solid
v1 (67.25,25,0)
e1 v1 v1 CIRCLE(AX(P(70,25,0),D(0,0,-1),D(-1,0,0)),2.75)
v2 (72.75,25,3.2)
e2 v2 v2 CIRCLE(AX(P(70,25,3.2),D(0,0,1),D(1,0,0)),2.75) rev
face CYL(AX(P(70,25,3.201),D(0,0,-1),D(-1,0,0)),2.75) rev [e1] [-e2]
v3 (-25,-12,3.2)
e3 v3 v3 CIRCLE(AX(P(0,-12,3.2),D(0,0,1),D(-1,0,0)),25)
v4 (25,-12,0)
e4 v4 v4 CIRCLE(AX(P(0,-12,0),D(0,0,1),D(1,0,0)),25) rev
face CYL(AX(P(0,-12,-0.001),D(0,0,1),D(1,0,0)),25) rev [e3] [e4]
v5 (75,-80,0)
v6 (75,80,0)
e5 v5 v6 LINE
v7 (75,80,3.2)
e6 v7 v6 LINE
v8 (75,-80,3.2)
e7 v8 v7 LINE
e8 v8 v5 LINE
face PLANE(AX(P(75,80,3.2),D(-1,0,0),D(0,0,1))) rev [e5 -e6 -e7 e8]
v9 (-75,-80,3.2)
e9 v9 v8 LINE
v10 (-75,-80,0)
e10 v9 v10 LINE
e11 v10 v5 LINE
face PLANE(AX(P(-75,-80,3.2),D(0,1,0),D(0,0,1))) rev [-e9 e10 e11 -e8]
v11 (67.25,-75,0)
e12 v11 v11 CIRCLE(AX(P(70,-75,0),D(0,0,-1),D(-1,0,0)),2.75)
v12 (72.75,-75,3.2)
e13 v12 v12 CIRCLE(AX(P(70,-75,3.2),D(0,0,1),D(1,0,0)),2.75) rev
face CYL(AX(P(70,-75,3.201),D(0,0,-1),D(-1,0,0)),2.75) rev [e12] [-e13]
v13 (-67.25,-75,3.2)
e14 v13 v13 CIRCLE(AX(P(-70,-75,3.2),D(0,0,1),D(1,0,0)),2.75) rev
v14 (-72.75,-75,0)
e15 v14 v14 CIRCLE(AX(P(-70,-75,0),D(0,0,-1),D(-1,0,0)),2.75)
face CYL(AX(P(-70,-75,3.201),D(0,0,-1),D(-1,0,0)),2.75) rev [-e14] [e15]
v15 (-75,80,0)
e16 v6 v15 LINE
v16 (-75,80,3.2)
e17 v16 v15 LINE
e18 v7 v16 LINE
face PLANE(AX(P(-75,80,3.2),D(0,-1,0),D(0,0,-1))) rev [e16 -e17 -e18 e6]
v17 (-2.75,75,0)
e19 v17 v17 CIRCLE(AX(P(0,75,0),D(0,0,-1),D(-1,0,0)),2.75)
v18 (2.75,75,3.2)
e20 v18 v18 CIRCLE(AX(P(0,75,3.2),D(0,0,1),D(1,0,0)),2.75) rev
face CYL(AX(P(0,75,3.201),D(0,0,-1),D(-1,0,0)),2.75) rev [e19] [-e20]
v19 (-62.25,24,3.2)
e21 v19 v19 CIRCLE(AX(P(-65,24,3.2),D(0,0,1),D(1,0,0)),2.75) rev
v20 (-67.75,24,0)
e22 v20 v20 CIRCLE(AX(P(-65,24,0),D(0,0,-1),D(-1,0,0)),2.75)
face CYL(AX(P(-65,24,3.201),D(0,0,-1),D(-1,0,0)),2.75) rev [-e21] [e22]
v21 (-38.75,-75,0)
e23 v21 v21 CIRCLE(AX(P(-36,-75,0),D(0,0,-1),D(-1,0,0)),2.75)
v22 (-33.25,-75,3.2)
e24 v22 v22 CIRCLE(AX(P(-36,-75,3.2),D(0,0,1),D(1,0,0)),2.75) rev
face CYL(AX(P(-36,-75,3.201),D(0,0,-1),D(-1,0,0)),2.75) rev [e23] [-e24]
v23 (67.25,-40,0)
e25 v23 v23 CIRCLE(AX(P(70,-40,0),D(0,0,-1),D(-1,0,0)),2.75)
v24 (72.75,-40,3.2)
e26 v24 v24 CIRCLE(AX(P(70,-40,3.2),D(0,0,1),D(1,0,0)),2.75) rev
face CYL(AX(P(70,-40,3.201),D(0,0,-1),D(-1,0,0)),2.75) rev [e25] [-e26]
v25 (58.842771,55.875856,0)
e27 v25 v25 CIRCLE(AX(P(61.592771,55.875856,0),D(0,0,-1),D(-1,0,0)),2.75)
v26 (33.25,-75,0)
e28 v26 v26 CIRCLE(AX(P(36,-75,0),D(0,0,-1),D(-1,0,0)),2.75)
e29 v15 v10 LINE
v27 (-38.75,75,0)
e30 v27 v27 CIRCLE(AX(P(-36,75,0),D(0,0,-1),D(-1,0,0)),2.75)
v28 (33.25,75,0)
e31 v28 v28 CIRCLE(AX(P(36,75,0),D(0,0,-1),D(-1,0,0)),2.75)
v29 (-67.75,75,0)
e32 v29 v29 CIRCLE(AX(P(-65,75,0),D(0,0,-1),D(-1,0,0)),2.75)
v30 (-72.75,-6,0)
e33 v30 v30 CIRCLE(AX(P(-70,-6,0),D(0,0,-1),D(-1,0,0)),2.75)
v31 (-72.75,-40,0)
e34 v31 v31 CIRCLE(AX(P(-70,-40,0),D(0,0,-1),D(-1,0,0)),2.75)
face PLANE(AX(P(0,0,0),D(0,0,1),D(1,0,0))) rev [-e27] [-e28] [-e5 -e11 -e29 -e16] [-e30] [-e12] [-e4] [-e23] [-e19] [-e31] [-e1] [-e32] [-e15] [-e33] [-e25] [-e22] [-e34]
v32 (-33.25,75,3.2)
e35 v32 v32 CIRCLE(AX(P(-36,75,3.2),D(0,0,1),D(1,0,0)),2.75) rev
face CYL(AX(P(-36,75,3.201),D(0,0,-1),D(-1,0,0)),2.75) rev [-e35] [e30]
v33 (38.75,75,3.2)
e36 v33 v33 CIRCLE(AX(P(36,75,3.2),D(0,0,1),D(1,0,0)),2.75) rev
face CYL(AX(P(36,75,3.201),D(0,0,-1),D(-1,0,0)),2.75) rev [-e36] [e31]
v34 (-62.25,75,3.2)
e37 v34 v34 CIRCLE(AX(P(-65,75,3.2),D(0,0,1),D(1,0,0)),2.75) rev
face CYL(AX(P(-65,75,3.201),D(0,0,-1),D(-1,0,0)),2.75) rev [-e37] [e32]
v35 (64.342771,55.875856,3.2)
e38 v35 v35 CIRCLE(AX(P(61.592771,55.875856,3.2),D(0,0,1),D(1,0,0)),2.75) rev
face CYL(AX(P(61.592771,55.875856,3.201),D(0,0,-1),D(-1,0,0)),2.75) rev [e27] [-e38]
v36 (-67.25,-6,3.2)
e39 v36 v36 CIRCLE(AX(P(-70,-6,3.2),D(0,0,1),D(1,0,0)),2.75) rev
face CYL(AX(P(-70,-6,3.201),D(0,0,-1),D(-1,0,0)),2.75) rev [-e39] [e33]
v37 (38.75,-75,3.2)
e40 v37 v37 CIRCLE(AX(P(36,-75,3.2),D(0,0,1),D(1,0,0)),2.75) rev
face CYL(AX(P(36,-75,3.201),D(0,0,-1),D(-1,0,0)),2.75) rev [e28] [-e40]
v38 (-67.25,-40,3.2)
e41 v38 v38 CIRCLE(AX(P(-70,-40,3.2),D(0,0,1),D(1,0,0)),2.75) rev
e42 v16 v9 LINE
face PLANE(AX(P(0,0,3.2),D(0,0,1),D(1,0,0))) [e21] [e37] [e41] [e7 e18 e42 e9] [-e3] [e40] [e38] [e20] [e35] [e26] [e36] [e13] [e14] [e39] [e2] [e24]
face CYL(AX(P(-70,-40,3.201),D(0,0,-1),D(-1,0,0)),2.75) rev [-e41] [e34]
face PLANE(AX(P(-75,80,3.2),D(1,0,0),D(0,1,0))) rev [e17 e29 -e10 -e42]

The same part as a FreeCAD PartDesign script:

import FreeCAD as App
import Part
import Sketcher
from FreeCAD import Vector

doc = App.newDocument("Part")
body = doc.addObject("PartDesign::Body", "Body")

sketch1 = body.newObject("Sketcher::SketchObject", "Sketch")
sketch1.AttachmentSupport = (doc.getObject("XY_Plane"), [""])
sketch1.MapMode = "FlatFace"
sketch1.addGeometry([
    Part.LineSegment(Vector(-75, 80, 0), Vector(-75, -80, 0)),
    Part.LineSegment(Vector(-75, -80, 0), Vector(75, -80, 0)),
    Part.LineSegment(Vector(75, -80, 0), Vector(75, 80, 0)),
    Part.LineSegment(Vector(75, 80, 0), Vector(-75, 80, 0)),
], False)
sketch1.addConstraint([
    Sketcher.Constraint("Coincident", 0, 2, 1, 1),
    Sketcher.Constraint("Coincident", 1, 2, 2, 1),
    Sketcher.Constraint("Coincident", 2, 2, 3, 1),
    Sketcher.Constraint("Coincident", 3, 2, 0, 1),
    Sketcher.Constraint("Vertical", 0),
    Sketcher.Constraint("Horizontal", 1),
    Sketcher.Constraint("Vertical", 2),
    Sketcher.Constraint("Horizontal", 3),
    Sketcher.Constraint("Symmetric", 0, 2, 2, 2, -1, 1),
    Sketcher.Constraint("DistanceX", 1, 1, 1, 2, 150.0),
    Sketcher.Constraint("DistanceY", 0, 2, 0, 1, 160.0),
])
pad1 = body.newObject("PartDesign::Pad", "Pad")
pad1.Profile = sketch1
pad1.Length = 3.2

sketch2 = body.newObject("Sketcher::SketchObject", "Sketch001")
sketch2.AttachmentSupport = (doc.getObject("XY_Plane"), [""])
sketch2.MapMode = "FlatFace"
sketch2.AttachmentOffset = App.Placement(Vector(0, 0, 3.2), App.Rotation())
sketch2.addGeometry(Part.Circle(Vector(0, -12, 0), Vector(0, 0, 1), 25), False)
sketch2.addConstraint([
    Sketcher.Constraint("PointOnObject", 0, 3, -2),
    Sketcher.Constraint("Diameter", 0, 50.0),
    Sketcher.Constraint("DistanceY", 0, 3, -1, 1, 12.0),
])
pocket1 = body.newObject("PartDesign::Pocket", "Pocket")
pocket1.Profile = sketch2
pocket1.Type = "UpToFirst"

sketch3 = body.newObject("Sketcher::SketchObject", "Sketch002")
sketch3.AttachmentSupport = (doc.getObject("XY_Plane"), [""])
sketch3.MapMode = "FlatFace"
sketch3.addGeometry(Part.Circle(Vector(-65, 24, 0), Vector(0, 0, 1), 2.8), False)
sketch3.addConstraint([
    Sketcher.Constraint("Diameter", 0, 5.5),
    Sketcher.Constraint("DistanceX", 0, 3, -1, 1, 65.0),
    Sketcher.Constraint("DistanceY", -1, 1, 0, 3, 24.0),
])
pocket2 = body.newObject("PartDesign::Pocket", "Pocket001")
pocket2.Profile = sketch3
pocket2.Type = "UpToFirst"
pocket2.Reversed = True

sketch4 = body.newObject("Sketcher::SketchObject", "Sketch003")
sketch4.AttachmentSupport = (doc.getObject("XY_Plane"), [""])
sketch4.MapMode = "FlatFace"
sketch4.addGeometry(Part.Circle(Vector(70, -75, 0), Vector(0, 0, 1), 2.8), False)
sketch4.addConstraint([
    Sketcher.Constraint("Diameter", 0, 5.5),
    Sketcher.Constraint("DistanceX", -1, 1, 0, 3, 70.0),
    Sketcher.Constraint("DistanceY", 0, 3, -1, 1, 75.0),
])
pocket3 = body.newObject("PartDesign::Pocket", "Pocket002")
pocket3.Profile = sketch4
pocket3.Type = "UpToFirst"
pocket3.Reversed = True

sketch5 = body.newObject("Sketcher::SketchObject", "Sketch004")
sketch5.AttachmentSupport = (doc.getObject("XY_Plane"), [""])
sketch5.MapMode = "FlatFace"
sketch5.addGeometry(Part.Circle(Vector(-36, -75, 0), Vector(0, 0, 1), 2.8), False)
sketch5.addConstraint([
    Sketcher.Constraint("Diameter", 0, 5.5),
    Sketcher.Constraint("DistanceX", 0, 3, -1, 1, 36.0),
    Sketcher.Constraint("DistanceY", 0, 3, -1, 1, 75.0),
])
pocket4 = body.newObject("PartDesign::Pocket", "Pocket003")
pocket4.Profile = sketch5
pocket4.Type = "UpToFirst"
pocket4.Reversed = True

sketch6 = body.newObject("Sketcher::SketchObject", "Sketch005")
sketch6.AttachmentSupport = (doc.getObject("XY_Plane"), [""])
sketch6.MapMode = "FlatFace"
sketch6.addGeometry(Part.Circle(Vector(36, -75, 0), Vector(0, 0, 1), 2.8), False)
sketch6.addConstraint([
    Sketcher.Constraint("Diameter", 0, 5.5),
    Sketcher.Constraint("DistanceX", -1, 1, 0, 3, 36.0),
    Sketcher.Constraint("DistanceY", 0, 3, -1, 1, 75.0),
])
pocket5 = body.newObject("PartDesign::Pocket", "Pocket004")
pocket5.Profile = sketch6
pocket5.Type = "UpToFirst"
pocket5.Reversed = True

sketch7 = body.newObject("Sketcher::SketchObject", "Sketch006")
sketch7.AttachmentSupport = (doc.getObject("XY_Plane"), [""])
sketch7.MapMode = "FlatFace"
sketch7.addGeometry(Part.Circle(Vector(-70, -75, 0), Vector(0, 0, 1), 2.8), False)
sketch7.addConstraint([
    Sketcher.Constraint("Diameter", 0, 5.5),
    Sketcher.Constraint("DistanceX", 0, 3, -1, 1, 70.0),
    Sketcher.Constraint("DistanceY", 0, 3, -1, 1, 75.0),
])
pocket6 = body.newObject("PartDesign::Pocket", "Pocket005")
pocket6.Profile = sketch7
pocket6.Type = "UpToFirst"
pocket6.Reversed = True

sketch8 = body.newObject("Sketcher::SketchObject", "Sketch007")
sketch8.AttachmentSupport = (doc.getObject("XY_Plane"), [""])
sketch8.MapMode = "FlatFace"
sketch8.addGeometry(Part.Circle(Vector(70, -40, 0), Vector(0, 0, 1), 2.8), False)
sketch8.addConstraint([
    Sketcher.Constraint("Diameter", 0, 5.5),
    Sketcher.Constraint("DistanceX", -1, 1, 0, 3, 70.0),
    Sketcher.Constraint("DistanceY", 0, 3, -1, 1, 40.0),
])
pocket7 = body.newObject("PartDesign::Pocket", "Pocket006")
pocket7.Profile = sketch8
pocket7.Type = "UpToFirst"
pocket7.Reversed = True

sketch9 = body.newObject("Sketcher::SketchObject", "Sketch008")
sketch9.AttachmentSupport = (doc.getObject("XY_Plane"), [""])
sketch9.MapMode = "FlatFace"
sketch9.addGeometry(Part.Circle(Vector(70, 25, 0), Vector(0, 0, 1), 2.8), False)
sketch9.addConstraint([
    Sketcher.Constraint("Diameter", 0, 5.5),
    Sketcher.Constraint("DistanceX", -1, 1, 0, 3, 70.0),
    Sketcher.Constraint("DistanceY", -1, 1, 0, 3, 25.0),
])
pocket8 = body.newObject("PartDesign::Pocket", "Pocket007")
pocket8.Profile = sketch9
pocket8.Type = "UpToFirst"
pocket8.Reversed = True

sketch10 = body.newObject("Sketcher::SketchObject", "Sketch009")
sketch10.AttachmentSupport = (doc.getObject("XY_Plane"), [""])
sketch10.MapMode = "FlatFace"
sketch10.addGeometry(Part.Circle(Vector(36, 75, 0), Vector(0, 0, 1), 2.8), False)
sketch10.addConstraint([
    Sketcher.Constraint("Diameter", 0, 5.5),
    Sketcher.Constraint("DistanceX", -1, 1, 0, 3, 36.0),
    Sketcher.Constraint("DistanceY", -1, 1, 0, 3, 75.0),
])
pocket9 = body.newObject("PartDesign::Pocket", "Pocket008")
pocket9.Profile = sketch10
pocket9.Type = "UpToFirst"
pocket9.Reversed = True

sketch11 = body.newObject("Sketcher::SketchObject", "Sketch010")
sketch11.AttachmentSupport = (doc.getObject("XY_Plane"), [""])
sketch11.MapMode = "FlatFace"
sketch11.addGeometry(Part.Circle(Vector(-36, 75, 0), Vector(0, 0, 1), 2.8), False)
sketch11.addConstraint([
    Sketcher.Constraint("Diameter", 0, 5.5),
    Sketcher.Constraint("DistanceX", 0, 3, -1, 1, 36.0),
    Sketcher.Constraint("DistanceY", -1, 1, 0, 3, 75.0),
])
pocket10 = body.newObject("PartDesign::Pocket", "Pocket009")
pocket10.Profile = sketch11
pocket10.Type = "UpToFirst"
pocket10.Reversed = True

sketch12 = body.newObject("Sketcher::SketchObject", "Sketch011")
sketch12.AttachmentSupport = (doc.getObject("XY_Plane"), [""])
sketch12.MapMode = "FlatFace"
sketch12.addGeometry(Part.Circle(Vector(-65, 75, 0), Vector(0, 0, 1), 2.8), False)
sketch12.addConstraint([
    Sketcher.Constraint("Diameter", 0, 5.5),
    Sketcher.Constraint("DistanceX", 0, 3, -1, 1, 65.0),
    Sketcher.Constraint("DistanceY", -1, 1, 0, 3, 75.0),
])
pocket11 = body.newObject("PartDesign::Pocket", "Pocket010")
pocket11.Profile = sketch12
pocket11.Type = "UpToFirst"
pocket11.Reversed = True

sketch13 = body.newObject("Sketcher::SketchObject", "Sketch012")
sketch13.AttachmentSupport = (doc.getObject("XY_Plane"), [""])
sketch13.MapMode = "FlatFace"
sketch13.addGeometry(Part.Circle(Vector(-70, -40, 0), Vector(0, 0, 1), 2.8), False)
sketch13.addConstraint([
    Sketcher.Constraint("Diameter", 0, 5.5),
    Sketcher.Constraint("DistanceX", 0, 3, -1, 1, 70.0),
    Sketcher.Constraint("DistanceY", 0, 3, -1, 1, 40.0),
])
pocket12 = body.newObject("PartDesign::Pocket", "Pocket011")
pocket12.Profile = sketch13
pocket12.Type = "UpToFirst"
pocket12.Reversed = True

sketch14 = body.newObject("Sketcher::SketchObject", "Sketch013")
sketch14.AttachmentSupport = (doc.getObject("XY_Plane"), [""])
sketch14.MapMode = "FlatFace"
sketch14.addGeometry(Part.Circle(Vector(-70, -6, 0), Vector(0, 0, 1), 2.8), False)
sketch14.addConstraint([
    Sketcher.Constraint("Diameter", 0, 5.5),
    Sketcher.Constraint("DistanceX", 0, 3, -1, 1, 70.0),
    Sketcher.Constraint("DistanceY", 0, 3, -1, 1, 6.0),
])
pocket13 = body.newObject("PartDesign::Pocket", "Pocket012")
pocket13.Profile = sketch14
pocket13.Type = "UpToFirst"
pocket13.Reversed = True

sketch15 = body.newObject("Sketcher::SketchObject", "Sketch014")
sketch15.AttachmentSupport = (doc.getObject("XY_Plane"), [""])
sketch15.MapMode = "FlatFace"
sketch15.addGeometry(Part.Circle(Vector(0, 75, 0), Vector(0, 0, 1), 2.8), False)
sketch15.addConstraint([
    Sketcher.Constraint("PointOnObject", 0, 3, -2),
    Sketcher.Constraint("Diameter", 0, 5.5),
    Sketcher.Constraint("DistanceY", -1, 1, 0, 3, 75.0),
])
pocket14 = body.newObject("PartDesign::Pocket", "Pocket013")
pocket14.Profile = sketch15
pocket14.Type = "UpToFirst"
pocket14.Reversed = True

sketch16 = body.newObject("Sketcher::SketchObject", "Sketch015")
sketch16.AttachmentSupport = (doc.getObject("XY_Plane"), [""])
sketch16.MapMode = "FlatFace"
sketch16.addGeometry(Part.Circle(Vector(61.6, 55.9, 0), Vector(0, 0, 1), 2.8), False)
sketch16.addConstraint([
    Sketcher.Constraint("Diameter", 0, 5.5),
    Sketcher.Constraint("DistanceX", -1, 1, 0, 3, 61.592771),
    Sketcher.Constraint("DistanceY", -1, 1, 0, 3, 55.875856),
])
pocket15 = body.newObject("PartDesign::Pocket", "Pocket014")
pocket15.Profile = sketch16
pocket15.Type = "UpToFirst"
pocket15.Reversed = True

doc.recompute()
